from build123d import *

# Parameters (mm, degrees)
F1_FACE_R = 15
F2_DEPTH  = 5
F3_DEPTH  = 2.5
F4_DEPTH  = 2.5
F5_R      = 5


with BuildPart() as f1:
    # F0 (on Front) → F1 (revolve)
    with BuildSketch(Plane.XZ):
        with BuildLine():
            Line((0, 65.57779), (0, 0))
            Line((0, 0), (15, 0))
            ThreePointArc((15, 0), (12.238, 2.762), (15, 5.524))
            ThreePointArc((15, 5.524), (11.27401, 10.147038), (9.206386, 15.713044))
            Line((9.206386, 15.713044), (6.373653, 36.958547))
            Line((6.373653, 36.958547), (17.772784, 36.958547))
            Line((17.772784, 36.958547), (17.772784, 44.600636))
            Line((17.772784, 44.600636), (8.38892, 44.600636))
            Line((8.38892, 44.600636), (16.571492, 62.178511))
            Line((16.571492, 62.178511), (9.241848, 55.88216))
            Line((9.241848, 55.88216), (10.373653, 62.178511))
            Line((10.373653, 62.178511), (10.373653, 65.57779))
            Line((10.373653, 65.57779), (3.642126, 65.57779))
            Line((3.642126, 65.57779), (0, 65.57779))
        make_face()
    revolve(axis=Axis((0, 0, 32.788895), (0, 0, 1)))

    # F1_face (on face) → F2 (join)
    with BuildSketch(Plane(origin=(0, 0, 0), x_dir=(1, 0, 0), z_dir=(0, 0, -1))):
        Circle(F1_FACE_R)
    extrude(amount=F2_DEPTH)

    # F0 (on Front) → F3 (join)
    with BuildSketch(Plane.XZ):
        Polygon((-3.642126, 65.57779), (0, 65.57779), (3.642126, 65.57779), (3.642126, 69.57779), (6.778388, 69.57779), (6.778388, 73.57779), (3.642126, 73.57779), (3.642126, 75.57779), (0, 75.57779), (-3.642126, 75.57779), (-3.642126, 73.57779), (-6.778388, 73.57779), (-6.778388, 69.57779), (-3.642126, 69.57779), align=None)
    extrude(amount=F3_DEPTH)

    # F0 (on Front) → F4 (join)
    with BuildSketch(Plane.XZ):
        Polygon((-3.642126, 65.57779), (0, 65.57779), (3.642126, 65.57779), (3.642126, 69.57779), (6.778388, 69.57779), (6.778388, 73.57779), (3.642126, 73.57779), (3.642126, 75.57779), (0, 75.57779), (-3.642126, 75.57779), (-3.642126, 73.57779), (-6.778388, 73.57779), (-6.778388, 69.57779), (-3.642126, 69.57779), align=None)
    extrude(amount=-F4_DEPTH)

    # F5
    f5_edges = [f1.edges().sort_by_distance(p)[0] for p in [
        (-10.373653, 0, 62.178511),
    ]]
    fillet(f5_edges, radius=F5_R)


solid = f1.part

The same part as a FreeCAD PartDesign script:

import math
import FreeCAD as App
import Part
import Sketcher

V = App.Vector


def edges_at(feature, points):
    """Names of the edges that pass closest to the given points."""
    edges = feature.Shape.Edges
    near = lambda p: min(range(len(edges)), key=lambda i: edges[i].distToShape(Part.Vertex(*p))[0])
    return sorted({f"Edge{near(p) + 1}" for p in points})

doc = App.newDocument("Part")
body = doc.addObject("PartDesign::Body", "Body")

# Sketch on XZ plane
sketch1 = body.newObject("Sketcher::SketchObject", "Sketch")
sketch1.AttachmentSupport = (doc.getObject("XZ_Plane"), [""])
sketch1.MapMode = "FlatFace"
sketch1.addGeometry([
    Part.LineSegment(V(0, 65.57779, 0), V(0, 0, 0)),  # 0
    Part.LineSegment(V(0, 0, 0), V(15, 0, 0)),  # 1
    Part.ArcOfCircle(Part.Circle(V(15, 2.762, 0), V(0, 0, 1), 2.762), math.radians(90), math.radians(270)),  # 2
    Part.ArcOfCircle(Part.Circle(V(27.339036, 19.281807, 0), V(0, 0, 1), 18.480505), math.radians(-168.865687), math.radians(-131.888142)),  # 3
    Part.LineSegment(V(9.206386, 15.713044, 0), V(6.373653, 36.958547, 0)),  # 4
    Part.LineSegment(V(6.373653, 36.958547, 0), V(17.772784, 36.958547, 0)),  # 5
    Part.LineSegment(V(17.772784, 36.958547, 0), V(17.772784, 44.600636, 0)),  # 6
    Part.LineSegment(V(17.772784, 44.600636, 0), V(8.38892, 44.600636, 0)),  # 7
    Part.LineSegment(V(8.38892, 44.600636, 0), V(16.571492, 62.178511, 0)),  # 8
    Part.LineSegment(V(16.571492, 62.178511, 0), V(9.241848, 55.88216, 0)),  # 9
    Part.LineSegment(V(9.241848, 55.88216, 0), V(10.373653, 62.178511, 0)),  # 10
    Part.LineSegment(V(10.373653, 62.178511, 0), V(10.373653, 65.57779, 0)),  # 11
    Part.LineSegment(V(10.373653, 65.57779, 0), V(0, 65.57779, 0)),  # 12
], False)
sketch1.addConstraint([
    Sketcher.Constraint("Coincident", 0, 2, 1, 1),
    Sketcher.Constraint("Tangent", 1, 2, 2, 2),
    Sketcher.Constraint("Coincident", 2, 1, 3, 2),
    Sketcher.Constraint("Coincident", 3, 1, 4, 1),
    Sketcher.Constraint("Coincident", 4, 2, 5, 1),
    Sketcher.Constraint("Coincident", 5, 2, 6, 1),
    Sketcher.Constraint("Coincident", 6, 2, 7, 1),
    Sketcher.Constraint("Coincident", 7, 2, 8, 1),
    Sketcher.Constraint("Coincident", 8, 2, 9, 1),
    Sketcher.Constraint("Coincident", 9, 2, 10, 1),
    Sketcher.Constraint("Coincident", 10, 2, 11, 1),
    Sketcher.Constraint("Coincident", 11, 2, 12, 1),
    Sketcher.Constraint("Coincident", 12, 2, 0, 1),
    Sketcher.Constraint("Vertical", 0),
    Sketcher.Constraint("Horizontal", 1),
    Sketcher.Constraint("Horizontal", 5),
    Sketcher.Constraint("Vertical", 6),
    Sketcher.Constraint("Horizontal", 7),
    Sketcher.Constraint("Vertical", 11),
    Sketcher.Constraint("Horizontal", 12),
    Sketcher.Constraint("Coincident", 0, 2, -1, 1),
    Sketcher.Constraint("Horizontal", 8, 2, 10, 2),
    Sketcher.Constraint("Vertical", 1, 2, 2, 1),
    Sketcher.Constraint("DistanceX", 1, 1, 1, 2, 15.0),
    Sketcher.Constraint("Radius", 2, 2.762),
    Sketcher.Constraint("DistanceX", 4, 2, 10, 2, 4.0),
    Sketcher.Constraint("Radius", 3, 18.480505),
    Sketcher.Constraint("DistanceX", 5, 1, 5, 2, 11.399131),
    Sketcher.Constraint("DistanceY", 0, 2, 0, 1, 65.57779),
    Sketcher.Constraint("DistanceY", 6, 1, 6, 2, 7.642089),
    Sketcher.Constraint("DistanceY", 11, 1, 11, 2, 3.399279),
    Sketcher.Constraint("Distance", 4, 21.43352),
    Sketcher.Constraint("DistanceX", 7, 2, 7, 1, 9.383864),
    Sketcher.Constraint("DistanceX", 12, 2, 12, 1, 10.373653),
    Sketcher.Constraint("DistanceX", -1, 1, 8, 2, 16.571492),
    Sketcher.Constraint("DistanceY", -1, 1, 9, 2, 55.88216),
    Sketcher.Constraint("DistanceX", 3, 1, 3, 3, 18.13265),
    Sketcher.Constraint("DistanceY", 3, 3, 4, 2, 17.67674),
    Sketcher.Constraint("Distance", 9, 9.662697),
])
revolution = body.newObject("PartDesign::Revolution", "Revolution")
revolution.Profile = sketch1
revolution.ReferenceAxis = (sketch1, ["V_Axis"])
revolution.Angle = 360

# Sketch on XY plane
sketch2 = body.newObject("Sketcher::SketchObject", "Sketch001")
sketch2.AttachmentSupport = (doc.getObject("XY_Plane"), [""])
sketch2.MapMode = "FlatFace"
sketch2.addGeometry(Part.Circle(V(0, 0, 0), V(0, 0, 1), 15), False)
sketch2.addConstraint([
    Sketcher.Constraint("Coincident", 0, 3, -1, 1),
    Sketcher.Constraint("Diameter", 0, 30.0),
])
pad1 = body.newObject("PartDesign::Pad", "Pad")
pad1.Profile = sketch2
pad1.Length = 5
pad1.Reversed = True

# Sketch on XZ plane
sketch3 = body.newObject("Sketcher::SketchObject", "Sketch002")
sketch3.AttachmentSupport = (doc.getObject("XZ_Plane"), [""])
sketch3.MapMode = "FlatFace"
sketch3.addGeometry([
    Part.LineSegment(V(-3.642126, 65.57779, 0), V(3.642126, 65.57779, 0)),  # 0
    Part.LineSegment(V(3.642126, 65.57779, 0), V(3.642126, 69.57779, 0)),  # 1
    Part.LineSegment(V(3.642126, 69.57779, 0), V(6.778388, 69.57779, 0)),  # 2
    Part.LineSegment(V(6.778388, 69.57779, 0), V(6.778388, 73.57779, 0)),  # 3
    Part.LineSegment(V(6.778388, 73.57779, 0), V(3.642126, 73.57779, 0)),  # 4
    Part.LineSegment(V(3.642126, 73.57779, 0), V(3.642126, 75.57779, 0)),  # 5
    Part.LineSegment(V(3.642126, 75.57779, 0), V(-3.642126, 75.57779, 0)),  # 6
    Part.LineSegment(V(-3.642126, 75.57779, 0), V(-3.642126, 73.57779, 0)),  # 7
    Part.LineSegment(V(-3.642126, 73.57779, 0), V(-6.778388, 73.57779, 0)),  # 8
    Part.LineSegment(V(-6.778388, 73.57779, 0), V(-6.778388, 69.57779, 0)),  # 9
    Part.LineSegment(V(-6.778388, 69.57779, 0), V(-3.642126, 69.57779, 0)),  # 10
    Part.LineSegment(V(-3.642126, 69.57779, 0), V(-3.642126, 65.57779, 0)),  # 11
], False)
sketch3.addConstraint([
    Sketcher.Constraint("Coincident", 0, 2, 1, 1),
    Sketcher.Constraint("Coincident", 1, 2, 2, 1),
    Sketcher.Constraint("Coincident", 2, 2, 3, 1),
    Sketcher.Constraint("Coincident", 3, 2, 4, 1),
    Sketcher.Constraint("Coincident", 4, 2, 5, 1),
    Sketcher.Constraint("Coincident", 5, 2, 6, 1),
    Sketcher.Constraint("Coincident", 6, 2, 7, 1),
    Sketcher.Constraint("Coincident", 7, 2, 8, 1),
    Sketcher.Constraint("Coincident", 8, 2, 9, 1),
    Sketcher.Constraint("Coincident", 9, 2, 10, 1),
    Sketcher.Constraint("Coincident", 10, 2, 11, 1),
    Sketcher.Constraint("Coincident", 11, 2, 0, 1),
    Sketcher.Constraint("Horizontal", 0),
    Sketcher.Constraint("Vertical", 1),
    Sketcher.Constraint("Horizontal", 2),
    Sketcher.Constraint("Vertical", 3),
    Sketcher.Constraint("Horizontal", 4),
    Sketcher.Constraint("Vertical", 5),
    Sketcher.Constraint("Horizontal", 6),
    Sketcher.Constraint("Vertical", 7),
    Sketcher.Constraint("Horizontal", 8),
    Sketcher.Constraint("Vertical", 9),
    Sketcher.Constraint("Horizontal", 10),
    Sketcher.Constraint("Vertical", 11),
    Sketcher.Constraint("Symmetric", 4, 2, 7, 2, -2),
    Sketcher.Constraint("Symmetric", 2, 2, 9, 2, -2),
    Sketcher.Constraint("Vertical", 1, 2, 4, 2),
    Sketcher.Constraint("Vertical", 7, 2, 10, 2),
    Sketcher.Constraint("Equal", 1, 3),
    Sketcher.Constraint("DistanceY", 1, 1, 1, 2, 4.0),
    Sketcher.Constraint("DistanceY", 5, 1, 5, 2, 2.0),
    Sketcher.Constraint("DistanceX", 2, 1, 2, 2, 3.136262),
    Sketcher.Constraint("DistanceX", 0, 1, 0, 2, 7.284252),
    Sketcher.Constraint("DistanceY", -1, 1, 0, 2, 65.57779),
])
pad2 = body.newObject("PartDesign::Pad", "Pad001")
pad2.Profile = sketch3
pad2.Length = 2.5

# Sketch on XZ plane
sketch4 = body.newObject("Sketcher::SketchObject", "Sketch003")
sketch4.AttachmentSupport = (doc.getObject("XZ_Plane"), [""])
sketch4.MapMode = "FlatFace"
sketch4.addGeometry([
    Part.LineSegment(V(-3.642126, 65.57779, 0), V(3.642126, 65.57779, 0)),  # 0
    Part.LineSegment(V(3.642126, 65.57779, 0), V(3.642126, 69.57779, 0)),  # 1
    Part.LineSegment(V(3.642126, 69.57779, 0), V(6.778388, 69.57779, 0)),  # 2
    Part.LineSegment(V(6.778388, 69.57779, 0), V(6.778388, 73.57779, 0)),  # 3
    Part.LineSegment(V(6.778388, 73.57779, 0), V(3.642126, 73.57779, 0)),  # 4
    Part.LineSegment(V(3.642126, 73.57779, 0), V(3.642126, 75.57779, 0)),  # 5
    Part.LineSegment(V(3.642126, 75.57779, 0), V(-3.642126, 75.57779, 0)),  # 6
    Part.LineSegment(V(-3.642126, 75.57779, 0), V(-3.642126, 73.57779, 0)),  # 7
    Part.LineSegment(V(-3.642126, 73.57779, 0), V(-6.778388, 73.57779, 0)),  # 8
    Part.LineSegment(V(-6.778388, 73.57779, 0), V(-6.778388, 69.57779, 0)),  # 9
    Part.LineSegment(V(-6.778388, 69.57779, 0), V(-3.642126, 69.57779, 0)),  # 10
    Part.LineSegment(V(-3.642126, 69.57779, 0), V(-3.642126, 65.57779, 0)),  # 11
], False)
sketch4.addConstraint([
    Sketcher.Constraint("Coincident", 0, 2, 1, 1),
    Sketcher.Constraint("Coincident", 1, 2, 2, 1),
    Sketcher.Constraint("Coincident", 2, 2, 3, 1),
    Sketcher.Constraint("Coincident", 3, 2, 4, 1),
    Sketcher.Constraint("Coincident", 4, 2, 5, 1),
    Sketcher.Constraint("Coincident", 5, 2, 6, 1),
    Sketcher.Constraint("Coincident", 6, 2, 7, 1),
    Sketcher.Constraint("Coincident", 7, 2, 8, 1),
    Sketcher.Constraint("Coincident", 8, 2, 9, 1),
    Sketcher.Constraint("Coincident", 9, 2, 10, 1),
    Sketcher.Constraint("Coincident", 10, 2, 11, 1),
    Sketcher.Constraint("Coincident", 11, 2, 0, 1),
    Sketcher.Constraint("Horizontal", 0),
    Sketcher.Constraint("Vertical", 1),
    Sketcher.Constraint("Horizontal", 2),
    Sketcher.Constraint("Vertical", 3),
    Sketcher.Constraint("Horizontal", 4),
    Sketcher.Constraint("Vertical", 5),
    Sketcher.Constraint("Horizontal", 6),
    Sketcher.Constraint("Vertical", 7),
    Sketcher.Constraint("Horizontal", 8),
    Sketcher.Constraint("Vertical", 9),
    Sketcher.Constraint("Horizontal", 10),
    Sketcher.Constraint("Vertical", 11),
    Sketcher.Constraint("Symmetric", 4, 2, 7, 2, -2),
    Sketcher.Constraint("Symmetric", 2, 2, 9, 2, -2),
    Sketcher.Constraint("Vertical", 1, 2, 4, 2),
    Sketcher.Constraint("Vertical", 7, 2, 10, 2),
    Sketcher.Constraint("Equal", 1, 3),
    Sketcher.Constraint("DistanceY", 1, 1, 1, 2, 4.0),
    Sketcher.Constraint("DistanceY", 5, 1, 5, 2, 2.0),
    Sketcher.Constraint("DistanceX", 2, 1, 2, 2, 3.136262),
    Sketcher.Constraint("DistanceX", 0, 1, 0, 2, 7.284252),
    Sketcher.Constraint("DistanceY", -1, 1, 0, 2, 65.57779),
])
pad3 = body.newObject("PartDesign::Pad", "Pad002")
pad3.Profile = sketch4
pad3.Length = 2.5
pad3.Reversed = True
doc.recompute()

fillet = body.newObject("PartDesign::Fillet", "Fillet")
fillet.Base = (pad3, edges_at(pad3, [(-10.374, 0, 62.179)]))
fillet.Radius = 5

doc.recompute()
